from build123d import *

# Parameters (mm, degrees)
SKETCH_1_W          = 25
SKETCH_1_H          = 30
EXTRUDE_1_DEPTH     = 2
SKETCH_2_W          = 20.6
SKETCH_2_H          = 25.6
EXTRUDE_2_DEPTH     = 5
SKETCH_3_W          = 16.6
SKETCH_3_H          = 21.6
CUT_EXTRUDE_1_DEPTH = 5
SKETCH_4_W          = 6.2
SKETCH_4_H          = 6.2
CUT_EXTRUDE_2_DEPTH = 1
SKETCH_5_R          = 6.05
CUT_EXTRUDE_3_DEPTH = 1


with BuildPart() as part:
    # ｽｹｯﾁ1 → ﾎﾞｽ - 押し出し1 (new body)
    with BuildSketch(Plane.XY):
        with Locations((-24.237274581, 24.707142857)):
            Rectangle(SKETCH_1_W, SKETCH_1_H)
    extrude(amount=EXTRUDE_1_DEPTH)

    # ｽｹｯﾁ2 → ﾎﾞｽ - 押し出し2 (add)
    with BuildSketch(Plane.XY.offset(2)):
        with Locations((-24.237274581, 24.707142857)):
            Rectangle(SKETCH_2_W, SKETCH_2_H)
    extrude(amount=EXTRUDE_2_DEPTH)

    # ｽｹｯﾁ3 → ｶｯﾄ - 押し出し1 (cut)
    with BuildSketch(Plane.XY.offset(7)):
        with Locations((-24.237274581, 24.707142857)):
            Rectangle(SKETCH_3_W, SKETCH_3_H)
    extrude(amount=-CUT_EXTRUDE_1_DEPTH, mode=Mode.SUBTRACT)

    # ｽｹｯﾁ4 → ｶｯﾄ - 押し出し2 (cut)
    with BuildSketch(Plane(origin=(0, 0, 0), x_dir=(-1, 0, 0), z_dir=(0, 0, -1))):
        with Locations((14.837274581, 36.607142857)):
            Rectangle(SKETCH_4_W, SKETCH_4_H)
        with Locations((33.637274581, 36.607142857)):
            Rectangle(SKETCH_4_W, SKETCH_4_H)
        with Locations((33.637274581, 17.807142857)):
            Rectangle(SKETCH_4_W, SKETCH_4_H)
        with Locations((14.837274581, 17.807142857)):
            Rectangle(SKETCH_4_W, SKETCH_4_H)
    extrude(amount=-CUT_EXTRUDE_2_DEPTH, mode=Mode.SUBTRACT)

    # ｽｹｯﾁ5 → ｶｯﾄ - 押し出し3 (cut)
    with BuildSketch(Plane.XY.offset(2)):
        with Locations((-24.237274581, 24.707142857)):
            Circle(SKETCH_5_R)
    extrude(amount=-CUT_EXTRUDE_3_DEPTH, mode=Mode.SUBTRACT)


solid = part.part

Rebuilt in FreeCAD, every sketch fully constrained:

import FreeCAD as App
import Part
import Sketcher
from FreeCAD import Vector


def add_polygon(sketch, points):
    """Adds a closed chain of lines whose ends are joined by coincident constraints."""
    first, n = sketch.GeometryCount, len(points)
    for a, b in zip(points, points[1:] + points[:1]):
        sketch.addGeometry(Part.LineSegment(App.Vector(*a, 0), App.Vector(*b, 0)), False)
    for i in range(n):
        sketch.addConstraint(Sketcher.Constraint("Coincident", first + i, 2, first + (i + 1) % n, 1))

doc = App.newDocument("Part")
body = doc.addObject("PartDesign::Body", "Body")

sketch1 = doc.addObject("Sketcher::SketchObject", "Sketch")
body.addObject(sketch1)
sketch1.AttachmentSupport = (doc.XY_Plane, [""])
sketch1.MapMode = "FlatFace"
add_polygon(sketch1, [(-37, 40), (-37, 10), (-12, 10), (-12, 40)])
sketch1.addConstraint([
    Sketcher.Constraint("Vertical", 0),
    Sketcher.Constraint("Horizontal", 1),
    Sketcher.Constraint("Vertical", 2),
    Sketcher.Constraint("Horizontal", 3),
    Sketcher.Constraint("DistanceX", 1, 1, 1, 2, 25.0),
    Sketcher.Constraint("DistanceY", 0, 2, 0, 1, 30.0),
    Sketcher.Constraint("DistanceX", 0, 2, -1, 1, 36.737275),
    Sketcher.Constraint("DistanceY", -1, 1, 0, 2, 9.707143),
])
pad1 = doc.addObject("PartDesign::Pad", "Pad")
body.addObject(pad1)
pad1.Profile = sketch1
pad1.Length = 2

sketch2 = doc.addObject("Sketcher::SketchObject", "Sketch001")
body.addObject(sketch2)
sketch2.AttachmentSupport = (doc.XY_Plane, [""])
sketch2.MapMode = "FlatFace"
sketch2.AttachmentOffset = App.Placement(Vector(0, 0, 2), App.Rotation())
add_polygon(sketch2, [(-35, 38), (-35, 12), (-14, 12), (-14, 38)])
sketch2.addConstraint([
    Sketcher.Constraint("Vertical", 0),
    Sketcher.Constraint("Horizontal", 1),
    Sketcher.Constraint("Vertical", 2),
    Sketcher.Constraint("Horizontal", 3),
    Sketcher.Constraint("DistanceX", 1, 1, 1, 2, 20.6),
    Sketcher.Constraint("DistanceY", 0, 2, 0, 1, 25.6),
    Sketcher.Constraint("DistanceX", 0, 2, -1, 1, 34.537275),
    Sketcher.Constraint("DistanceY", -1, 1, 0, 2, 11.907143),
])
pad2 = doc.addObject("PartDesign::Pad", "Pad001")
body.addObject(pad2)
pad2.Profile = sketch2
pad2.Length = 5

sketch3 = doc.addObject("Sketcher::SketchObject", "Sketch002")
body.addObject(sketch3)
sketch3.AttachmentSupport = (doc.XY_Plane, [""])
sketch3.MapMode = "FlatFace"
sketch3.AttachmentOffset = App.Placement(Vector(0, 0, 7), App.Rotation())
add_polygon(sketch3, [(-33, 36), (-33, 14), (-16, 14), (-16, 36)])
sketch3.addConstraint([
    Sketcher.Constraint("Vertical", 0),
    Sketcher.Constraint("Horizontal", 1),
    Sketcher.Constraint("Vertical", 2),
    Sketcher.Constraint("Horizontal", 3),
    Sketcher.Constraint("DistanceX", 1, 1, 1, 2, 16.6),
    Sketcher.Constraint("DistanceY", 0, 2, 0, 1, 21.6),
    Sketcher.Constraint("DistanceX", 0, 2, -1, 1, 32.537275),
    Sketcher.Constraint("DistanceY", -1, 1, 0, 2, 13.907143),
])
pocket1 = doc.addObject("PartDesign::Pocket", "Pocket")
body.addObject(pocket1)
pocket1.Profile = sketch3
pocket1.Length = 5

sketch4 = doc.addObject("Sketcher::SketchObject", "Sketch003")
body.addObject(sketch4)
sketch4.AttachmentSupport = (doc.XY_Plane, [""])
sketch4.MapMode = "FlatFace"
add_polygon(sketch4, [(-12, 40), (-12, 34), (-18, 34), (-18, 40)])
add_polygon(sketch4, [(-31, 40), (-31, 34), (-37, 34), (-37, 40)])
add_polygon(sketch4, [(-31, 21), (-31, 15), (-37, 15), (-37, 21)])
add_polygon(sketch4, [(-12, 21), (-12, 15), (-18, 15), (-18, 21)])
sketch4.addConstraint([
    Sketcher.Constraint("Vertical", 0),
    Sketcher.Constraint("Horizontal", 1),
    Sketcher.Constraint("Vertical", 2),
    Sketcher.Constraint("Horizontal", 3),
    Sketcher.Constraint("Vertical", 4),
    Sketcher.Constraint("Horizontal", 5),
    Sketcher.Constraint("Vertical", 6),
    Sketcher.Constraint("Horizontal", 7),
    Sketcher.Constraint("Vertical", 8),
    Sketcher.Constraint("Horizontal", 9),
    Sketcher.Constraint("Vertical", 10),
    Sketcher.Constraint("Horizontal", 11),
    Sketcher.Constraint("Vertical", 12),
    Sketcher.Constraint("Horizontal", 13),
    Sketcher.Constraint("Vertical", 14),
    Sketcher.Constraint("Horizontal", 15),
    Sketcher.Constraint("Horizontal", 1, 2, 4, 2),
    Sketcher.Constraint("Horizontal", 3, 2, 6, 2),
    Sketcher.Constraint("Horizontal", 9, 2, 12, 2),
    Sketcher.Constraint("Horizontal", 11, 2, 14, 2),
    Sketcher.Constraint("Vertical", 7, 2, 8, 2),
    Sketcher.Constraint("Vertical", 6, 2, 9, 2),
    Sketcher.Constraint("Vertical", 3, 2, 12, 2),
    Sketcher.Constraint("Vertical", 2, 2, 13, 2),
    Sketcher.Constraint("Equal", 3, 5),
    Sketcher.Constraint("Equal", 15, 0),
    Sketcher.Constraint("Equal", 6, 8),
    Sketcher.Constraint("DistanceX", 1, 2, 1, 1, 6.2),
    Sketcher.Constraint("DistanceX", 5, 2, 0, 2, 25.0),
    Sketcher.Constraint("DistanceY", 8, 2, 7, 2, 25.0),
    Sketcher.Constraint("DistanceX", 0, 2, -1, 1, 11.737275),
    Sketcher.Constraint("DistanceY", -1, 1, 0, 2, 33.507143),
])
pocket2 = doc.addObject("PartDesign::Pocket", "Pocket001")
body.addObject(pocket2)
pocket2.Profile = sketch4
pocket2.Length = 1
pocket2.Reversed = True

sketch5 = doc.addObject("Sketcher::SketchObject", "Sketch004")
body.addObject(sketch5)
sketch5.AttachmentSupport = (doc.XY_Plane, [""])
sketch5.MapMode = "FlatFace"
sketch5.AttachmentOffset = App.Placement(Vector(0, 0, 2), App.Rotation())
sketch5.addGeometry(Part.Circle(Vector(-24, 25, 0), Vector(0, 0, 1), 6), False)
sketch5.addConstraint([
    Sketcher.Constraint("Diameter", 0, 12.1),
    Sketcher.Constraint("DistanceX", 0, 3, -1, 1, 24.237275),
    Sketcher.Constraint("DistanceY", -1, 1, 0, 3, 24.707143),
])
pocket3 = doc.addObject("PartDesign::Pocket", "Pocket002")
body.addObject(pocket3)
pocket3.Profile = sketch5
pocket3.Length = 1

doc.recompute()
